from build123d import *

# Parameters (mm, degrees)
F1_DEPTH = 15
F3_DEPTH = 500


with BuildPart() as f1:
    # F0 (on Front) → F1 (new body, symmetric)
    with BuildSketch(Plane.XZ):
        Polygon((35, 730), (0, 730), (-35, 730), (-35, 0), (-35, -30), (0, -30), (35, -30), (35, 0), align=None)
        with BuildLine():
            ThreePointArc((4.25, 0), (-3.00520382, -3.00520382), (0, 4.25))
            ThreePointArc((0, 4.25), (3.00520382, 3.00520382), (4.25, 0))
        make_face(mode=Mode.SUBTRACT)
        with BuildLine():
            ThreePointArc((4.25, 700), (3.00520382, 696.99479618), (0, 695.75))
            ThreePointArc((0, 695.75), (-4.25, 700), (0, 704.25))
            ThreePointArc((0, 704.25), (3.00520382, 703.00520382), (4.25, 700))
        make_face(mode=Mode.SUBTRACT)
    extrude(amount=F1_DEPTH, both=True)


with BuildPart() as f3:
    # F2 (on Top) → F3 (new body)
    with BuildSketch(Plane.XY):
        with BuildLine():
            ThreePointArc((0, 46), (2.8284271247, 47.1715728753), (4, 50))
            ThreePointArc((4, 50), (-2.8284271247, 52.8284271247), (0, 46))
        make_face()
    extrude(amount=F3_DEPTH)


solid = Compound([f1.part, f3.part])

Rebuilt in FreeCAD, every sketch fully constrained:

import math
import FreeCAD as App
import Part
import Sketcher

doc = App.newDocument("Part")
body = doc.addObject("PartDesign::Body", "Body")

# Sketch on XZ plane
sketch1 = body.newObject("Sketcher::SketchObject", "Sketch")
sketch1.AttachmentSupport = (doc.getObject("XZ_Plane"), [""])
sketch1.MapMode = "FlatFace"
sketch1.addGeometry([
    Part.LineSegment(App.Vector(35, 730, 0), App.Vector(-35, 730, 0)),  # 0
    Part.LineSegment(App.Vector(-35, 730, 0), App.Vector(-35, -30, 0)),  # 1
    Part.LineSegment(App.Vector(-35, -30, 0), App.Vector(35, -30, 0)),  # 2
    Part.LineSegment(App.Vector(35, -30, 0), App.Vector(35, 730, 0)),  # 3
    Part.ArcOfCircle(Part.Circle(App.Vector(0, 0, 0), App.Vector(0, 0, 1), 4.2), math.radians(0), math.radians(90)),  # 4
    Part.ArcOfCircle(Part.Circle(App.Vector(0, 0, 0), App.Vector(0, 0, 1), 4.2), math.radians(90), math.radians(360)),  # 5
    Part.ArcOfCircle(Part.Circle(App.Vector(0, 700, 0), App.Vector(0, 0, 1), 4.2), math.radians(0), math.radians(90)),  # 6
    Part.ArcOfCircle(Part.Circle(App.Vector(0, 700, 0), App.Vector(0, 0, 1), 4.2), math.radians(-90), math.radians(0)),  # 7
    Part.ArcOfCircle(Part.Circle(App.Vector(0, 700, 0), App.Vector(0, 0, 1), 4.2), math.radians(90), math.radians(270)),  # 8
], False)
sketch1.addConstraint([
    Sketcher.Constraint("Coincident", 0, 2, 1, 1),
    Sketcher.Constraint("Coincident", 1, 2, 2, 1),
    Sketcher.Constraint("Coincident", 2, 2, 3, 1),
    Sketcher.Constraint("Coincident", 3, 2, 0, 1),
    Sketcher.Constraint("Tangent", 4, 1, 5, 2),
    Sketcher.Constraint("Coincident", 5, 1, 4, 2),
    Sketcher.Constraint("Tangent", 6, 1, 7, 2),
    Sketcher.Constraint("Tangent", 7, 1, 8, 2),
    Sketcher.Constraint("Tangent", 8, 1, 6, 2),
    Sketcher.Constraint("Horizontal", 0),
    Sketcher.Constraint("Vertical", 1),
    Sketcher.Constraint("Horizontal", 2),
    Sketcher.Constraint("Vertical", 3),
    Sketcher.Constraint("Coincident", 4, 3, -1, 1),
    Sketcher.Constraint("Equal", 5, 6),
    Sketcher.Constraint("PointOnObject", 6, 3, -2),
    Sketcher.Constraint("PointOnObject", 4, 1, -1),
    Sketcher.Constraint("PointOnObject", 5, 1, -2),
    Sketcher.Constraint("PointOnObject", 7, 1, -2),
    Sketcher.Constraint("PointOnObject", 8, 1, -2),
    Sketcher.Constraint("Horizontal", 8, 3, 6, 1),
    Sketcher.Constraint("DistanceX", 0, 2, 0, 1, 70.0),
    Sketcher.Constraint("DistanceY", 1, 2, 1, 1, 760.0),
    Sketcher.Constraint("Radius", 4, 4.25),
    Sketcher.Constraint("DistanceY", -1, 1, 6, 3, 700.0),
    Sketcher.Constraint("DistanceX", 0, 2, -1, 1, 35.0),
    Sketcher.Constraint("DistanceY", -1, 1, 0, 2, 730.0),
])
pad1 = body.newObject("PartDesign::Pad", "Pad")
pad1.Profile = sketch1
pad1.Length = 30
pad1.Midplane = True
body2 = doc.addObject("PartDesign::Body", "Body001")

# Sketch on XY plane
sketch2 = body2.newObject("Sketcher::SketchObject", "Sketch001")
sketch2.AttachmentSupport = (doc.getObject("XY_Plane001"), [""])
sketch2.MapMode = "FlatFace"
sketch2.addGeometry([
    Part.ArcOfCircle(Part.Circle(App.Vector(0, 50, 0), App.Vector(0, 0, 1), 4), math.radians(-90), math.radians(0)),
    Part.ArcOfCircle(Part.Circle(App.Vector(0, 50, 0), App.Vector(0, 0, 1), 4), math.radians(0), math.radians(270)),
], False)
sketch2.addConstraint([
    Sketcher.Constraint("Tangent", 0, 1, 1, 2),
    Sketcher.Constraint("Coincident", 1, 1, 0, 2),
    Sketcher.Constraint("PointOnObject", 0, 3, -2),
    Sketcher.Constraint("PointOnObject", 0, 1, -2),
    Sketcher.Constraint("Horizontal", 0, 3, 1, 1),
    Sketcher.Constraint("Radius", 0, 4.0),
    Sketcher.Constraint("DistanceY", -1, 1, 0, 3, 50.0),
])
pad2 = body2.newObject("PartDesign::Pad", "Pad001")
pad2.Profile = sketch2
pad2.Length = 500

doc.recompute()
